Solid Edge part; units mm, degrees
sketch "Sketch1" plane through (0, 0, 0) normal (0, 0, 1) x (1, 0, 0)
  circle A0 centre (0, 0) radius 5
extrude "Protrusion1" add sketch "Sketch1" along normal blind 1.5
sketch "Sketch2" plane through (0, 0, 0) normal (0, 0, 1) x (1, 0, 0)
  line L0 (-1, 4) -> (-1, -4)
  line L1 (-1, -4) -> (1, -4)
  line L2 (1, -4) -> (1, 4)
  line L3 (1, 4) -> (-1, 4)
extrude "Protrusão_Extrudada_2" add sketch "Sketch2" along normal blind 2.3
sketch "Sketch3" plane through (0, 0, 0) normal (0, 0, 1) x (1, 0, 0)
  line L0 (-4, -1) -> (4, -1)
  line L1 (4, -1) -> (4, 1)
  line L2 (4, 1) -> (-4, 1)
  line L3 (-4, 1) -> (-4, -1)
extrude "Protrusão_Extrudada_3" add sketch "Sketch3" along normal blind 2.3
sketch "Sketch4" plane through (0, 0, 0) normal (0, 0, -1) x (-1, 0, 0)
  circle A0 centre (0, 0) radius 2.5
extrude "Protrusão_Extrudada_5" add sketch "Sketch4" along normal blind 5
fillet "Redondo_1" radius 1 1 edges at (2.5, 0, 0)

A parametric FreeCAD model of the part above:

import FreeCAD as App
import Part
import Sketcher
from FreeCAD import Vector


def edges_at(feature, points):
    """Names of the edges that pass closest to the given points."""
    edges = feature.Shape.Edges
    near = lambda p: min(range(len(edges)), key=lambda i: edges[i].distToShape(Part.Vertex(*p))[0])
    return sorted({f"Edge{near(p) + 1}" for p in points})

doc = App.newDocument("Part")
body = doc.addObject("PartDesign::Body", "Body")

sketch1 = body.newObject("Sketcher::SketchObject", "Sketch")
sketch1.AttachmentSupport = (doc.getObject("XY_Plane"), [""])
sketch1.MapMode = "FlatFace"
sketch1.addGeometry(Part.Circle(Vector(0, 0, 0), Vector(0, 0, 1), 5), False)
sketch1.addConstraint(Sketcher.Constraint("Coincident", 0, 3, -1, 1))
sketch1.addConstraint(Sketcher.Constraint("Diameter", 0, 10.0))
pad1 = body.newObject("PartDesign::Pad", "Pad")
pad1.Profile = sketch1
pad1.Length = 1.5

sketch2 = body.newObject("Sketcher::SketchObject", "Sketch001")
sketch2.AttachmentSupport = (doc.getObject("XY_Plane"), [""])
sketch2.MapMode = "FlatFace"
sketch2.addGeometry(Part.LineSegment(Vector(1, 4, 0), Vector(-1, 4, 0)), False)
sketch2.addGeometry(Part.LineSegment(Vector(-1, 4, 0), Vector(-1, -4, 0)), False)
sketch2.addGeometry(Part.LineSegment(Vector(-1, -4, 0), Vector(1, -4, 0)), False)
sketch2.addGeometry(Part.LineSegment(Vector(1, -4, 0), Vector(1, 4, 0)), False)
sketch2.addConstraint(Sketcher.Constraint("Coincident", 0, 2, 1, 1))
sketch2.addConstraint(Sketcher.Constraint("Coincident", 1, 2, 2, 1))
sketch2.addConstraint(Sketcher.Constraint("Coincident", 2, 2, 3, 1))
sketch2.addConstraint(Sketcher.Constraint("Coincident", 3, 2, 0, 1))
sketch2.addConstraint(Sketcher.Constraint("Horizontal", 0))
sketch2.addConstraint(Sketcher.Constraint("Vertical", 1))
sketch2.addConstraint(Sketcher.Constraint("Horizontal", 2))
sketch2.addConstraint(Sketcher.Constraint("Vertical", 3))
sketch2.addConstraint(Sketcher.Constraint("Symmetric", 0, 2, 2, 2, -1, 1))
sketch2.addConstraint(Sketcher.Constraint("DistanceX", 0, 2, 0, 1, 2.0))
sketch2.addConstraint(Sketcher.Constraint("DistanceY", 1, 2, 1, 1, 8.0))
pad2 = body.newObject("PartDesign::Pad", "Pad001")
pad2.Profile = sketch2
pad2.Length = 2.3

sketch3 = body.newObject("Sketcher::SketchObject", "Sketch002")
sketch3.AttachmentSupport = (doc.getObject("XY_Plane"), [""])
sketch3.MapMode = "FlatFace"
sketch3.addGeometry(Part.LineSegment(Vector(-4, 1, 0), Vector(-4, -1, 0)), False)
sketch3.addGeometry(Part.LineSegment(Vector(-4, -1, 0), Vector(4, -1, 0)), False)
sketch3.addGeometry(Part.LineSegment(Vector(4, -1, 0), Vector(4, 1, 0)), False)
sketch3.addGeometry(Part.LineSegment(Vector(4, 1, 0), Vector(-4, 1, 0)), False)
sketch3.addConstraint(Sketcher.Constraint("Coincident", 0, 2, 1, 1))
sketch3.addConstraint(Sketcher.Constraint("Coincident", 1, 2, 2, 1))
sketch3.addConstraint(Sketcher.Constraint("Coincident", 2, 2, 3, 1))
sketch3.addConstraint(Sketcher.Constraint("Coincident", 3, 2, 0, 1))
sketch3.addConstraint(Sketcher.Constraint("Vertical", 0))
sketch3.addConstraint(Sketcher.Constraint("Horizontal", 1))
sketch3.addConstraint(Sketcher.Constraint("Vertical", 2))
sketch3.addConstraint(Sketcher.Constraint("Horizontal", 3))
sketch3.addConstraint(Sketcher.Constraint("Symmetric", 0, 2, 2, 2, -1, 1))
sketch3.addConstraint(Sketcher.Constraint("DistanceX", 1, 1, 1, 2, 8.0))
sketch3.addConstraint(Sketcher.Constraint("DistanceY", 0, 2, 0, 1, 2.0))
pad3 = body.newObject("PartDesign::Pad", "Pad002")
pad3.Profile = sketch3
pad3.Length = 2.3

sketch4 = body.newObject("Sketcher::SketchObject", "Sketch003")
sketch4.AttachmentSupport = (doc.getObject("XY_Plane"), [""])
sketch4.MapMode = "FlatFace"
sketch4.addGeometry(Part.Circle(Vector(0, 0, 0), Vector(0, 0, 1), 2.5), False)
sketch4.addConstraint(Sketcher.Constraint("Coincident", 0, 3, -1, 1))
sketch4.addConstraint(Sketcher.Constraint("Diameter", 0, 5.0))
pad4 = body.newObject("PartDesign::Pad", "Pad003")
pad4.Profile = sketch4
pad4.Length = 5
pad4.Reversed = True
doc.recompute()

fillet = body.newObject("PartDesign::Fillet", "Fillet")
fillet.Base = (pad4, edges_at(pad4, [(2.5, 0, 0)]))
fillet.Radius = 1

doc.recompute()
